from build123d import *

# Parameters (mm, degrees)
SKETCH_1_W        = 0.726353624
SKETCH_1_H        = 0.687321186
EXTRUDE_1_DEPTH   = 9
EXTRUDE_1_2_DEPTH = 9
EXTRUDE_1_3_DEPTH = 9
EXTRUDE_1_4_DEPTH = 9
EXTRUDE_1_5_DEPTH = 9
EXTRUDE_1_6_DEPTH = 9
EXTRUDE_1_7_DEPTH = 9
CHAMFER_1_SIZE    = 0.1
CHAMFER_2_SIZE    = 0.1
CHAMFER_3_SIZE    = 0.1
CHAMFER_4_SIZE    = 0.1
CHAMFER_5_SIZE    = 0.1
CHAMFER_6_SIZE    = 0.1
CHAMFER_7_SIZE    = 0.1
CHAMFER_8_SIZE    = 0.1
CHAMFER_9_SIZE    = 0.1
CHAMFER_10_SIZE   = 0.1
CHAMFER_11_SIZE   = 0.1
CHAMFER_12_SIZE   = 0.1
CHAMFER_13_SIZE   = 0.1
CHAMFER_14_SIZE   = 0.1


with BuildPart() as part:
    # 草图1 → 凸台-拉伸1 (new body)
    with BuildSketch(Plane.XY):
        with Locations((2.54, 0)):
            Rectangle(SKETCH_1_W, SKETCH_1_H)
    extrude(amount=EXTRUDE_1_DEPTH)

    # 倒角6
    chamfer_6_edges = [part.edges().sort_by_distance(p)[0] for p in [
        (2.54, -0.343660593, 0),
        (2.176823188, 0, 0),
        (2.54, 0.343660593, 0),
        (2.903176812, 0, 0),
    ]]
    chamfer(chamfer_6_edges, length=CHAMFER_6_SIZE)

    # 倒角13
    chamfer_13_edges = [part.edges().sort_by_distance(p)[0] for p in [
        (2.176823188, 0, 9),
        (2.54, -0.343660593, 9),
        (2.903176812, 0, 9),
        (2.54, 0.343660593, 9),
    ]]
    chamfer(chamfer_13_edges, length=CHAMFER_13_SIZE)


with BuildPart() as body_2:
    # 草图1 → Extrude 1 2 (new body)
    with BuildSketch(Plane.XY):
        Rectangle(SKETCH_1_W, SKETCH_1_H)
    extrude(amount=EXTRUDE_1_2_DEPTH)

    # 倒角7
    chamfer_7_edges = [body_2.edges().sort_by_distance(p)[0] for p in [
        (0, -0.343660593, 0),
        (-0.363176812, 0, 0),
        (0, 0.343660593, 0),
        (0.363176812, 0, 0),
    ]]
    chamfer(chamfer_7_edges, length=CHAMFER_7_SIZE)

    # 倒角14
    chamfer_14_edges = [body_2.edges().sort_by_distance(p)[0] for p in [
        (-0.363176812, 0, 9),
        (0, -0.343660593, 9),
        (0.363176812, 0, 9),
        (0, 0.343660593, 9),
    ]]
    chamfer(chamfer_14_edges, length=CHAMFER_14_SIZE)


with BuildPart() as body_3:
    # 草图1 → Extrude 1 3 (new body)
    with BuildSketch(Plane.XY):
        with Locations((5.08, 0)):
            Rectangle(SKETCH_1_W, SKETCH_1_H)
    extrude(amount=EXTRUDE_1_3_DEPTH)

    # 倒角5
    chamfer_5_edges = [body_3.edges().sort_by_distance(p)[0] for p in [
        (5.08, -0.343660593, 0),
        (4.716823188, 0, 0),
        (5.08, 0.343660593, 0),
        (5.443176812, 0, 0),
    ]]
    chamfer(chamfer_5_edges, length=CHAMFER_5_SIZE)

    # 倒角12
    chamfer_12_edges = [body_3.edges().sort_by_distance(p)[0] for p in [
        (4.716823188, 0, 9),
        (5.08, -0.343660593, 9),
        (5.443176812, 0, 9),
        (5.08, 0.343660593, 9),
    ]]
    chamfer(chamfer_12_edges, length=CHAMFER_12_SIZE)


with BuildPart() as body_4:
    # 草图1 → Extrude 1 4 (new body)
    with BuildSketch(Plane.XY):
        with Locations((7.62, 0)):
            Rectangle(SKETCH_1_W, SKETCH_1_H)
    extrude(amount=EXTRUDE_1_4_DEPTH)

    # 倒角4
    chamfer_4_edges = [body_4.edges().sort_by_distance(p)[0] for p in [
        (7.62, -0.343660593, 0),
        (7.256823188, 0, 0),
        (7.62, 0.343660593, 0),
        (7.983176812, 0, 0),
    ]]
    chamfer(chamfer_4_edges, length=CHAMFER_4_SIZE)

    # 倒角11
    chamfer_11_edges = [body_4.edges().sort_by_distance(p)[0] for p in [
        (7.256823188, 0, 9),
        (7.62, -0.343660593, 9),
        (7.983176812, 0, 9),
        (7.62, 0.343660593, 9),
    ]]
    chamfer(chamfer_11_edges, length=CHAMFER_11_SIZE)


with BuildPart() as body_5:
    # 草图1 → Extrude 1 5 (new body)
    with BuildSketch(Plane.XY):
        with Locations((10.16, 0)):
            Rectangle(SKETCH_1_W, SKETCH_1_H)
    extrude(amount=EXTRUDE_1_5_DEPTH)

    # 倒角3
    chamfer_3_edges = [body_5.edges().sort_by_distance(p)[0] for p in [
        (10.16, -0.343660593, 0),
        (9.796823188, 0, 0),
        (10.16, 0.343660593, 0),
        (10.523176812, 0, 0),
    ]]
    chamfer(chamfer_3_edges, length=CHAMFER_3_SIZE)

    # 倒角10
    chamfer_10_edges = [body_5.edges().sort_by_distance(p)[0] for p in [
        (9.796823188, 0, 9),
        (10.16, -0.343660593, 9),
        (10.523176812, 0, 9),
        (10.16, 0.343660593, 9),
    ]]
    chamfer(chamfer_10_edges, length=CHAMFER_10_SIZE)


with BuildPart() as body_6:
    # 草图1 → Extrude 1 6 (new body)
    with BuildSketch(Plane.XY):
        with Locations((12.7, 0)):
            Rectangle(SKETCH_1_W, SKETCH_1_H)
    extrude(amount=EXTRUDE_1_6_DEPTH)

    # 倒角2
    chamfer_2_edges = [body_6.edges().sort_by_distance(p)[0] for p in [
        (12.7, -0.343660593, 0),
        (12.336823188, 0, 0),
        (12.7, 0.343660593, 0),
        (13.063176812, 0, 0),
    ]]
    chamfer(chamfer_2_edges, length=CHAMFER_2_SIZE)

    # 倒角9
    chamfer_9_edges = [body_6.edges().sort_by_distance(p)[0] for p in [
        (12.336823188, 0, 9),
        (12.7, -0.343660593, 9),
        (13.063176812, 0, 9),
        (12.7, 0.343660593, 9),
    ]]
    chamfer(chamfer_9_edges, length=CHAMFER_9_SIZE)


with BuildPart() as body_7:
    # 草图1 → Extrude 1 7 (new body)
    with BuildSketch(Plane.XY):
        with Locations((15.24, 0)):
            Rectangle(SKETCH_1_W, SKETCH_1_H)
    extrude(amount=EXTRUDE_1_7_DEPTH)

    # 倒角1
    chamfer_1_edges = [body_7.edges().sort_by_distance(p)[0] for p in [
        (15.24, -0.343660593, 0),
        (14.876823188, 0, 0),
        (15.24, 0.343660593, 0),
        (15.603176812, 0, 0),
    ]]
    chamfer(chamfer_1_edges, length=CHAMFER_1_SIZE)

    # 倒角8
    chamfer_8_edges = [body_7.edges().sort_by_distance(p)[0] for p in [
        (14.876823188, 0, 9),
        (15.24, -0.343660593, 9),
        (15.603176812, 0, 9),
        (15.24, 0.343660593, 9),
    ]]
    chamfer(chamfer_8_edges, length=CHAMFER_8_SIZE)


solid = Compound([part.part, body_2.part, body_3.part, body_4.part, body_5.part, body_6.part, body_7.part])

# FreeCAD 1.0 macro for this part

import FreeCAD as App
import Part
import Sketcher
from FreeCAD import Vector
Q = App.Units.Quantity


def edges_at(feature, points):
    """Names of the edges that pass closest to the given points."""
    edges = feature.Shape.Edges
    near = lambda p: min(range(len(edges)), key=lambda i: edges[i].distToShape(Part.Vertex(*p))[0])
    return sorted({f"Edge{near(p) + 1}" for p in points})

doc = App.newDocument("Part")
params = doc.addObject("Spreadsheet::Sheet", "Params")
for row, (alias, value) in enumerate([
    ("pad1_length", "9 mm"),
    ("chamfer_size", "0.1 mm"),
    ("chamfer2_size", "0.1 mm"),
    ("pad2_length", "9 mm"),
    ("chamfer3_size", "0.1 mm"),
    ("chamfer4_size", "0.1 mm"),
    ("pad3_length", "9 mm"),
    ("chamfer5_size", "0.1 mm"),
    ("chamfer6_size", "0.1 mm"),
    ("pad4_length", "9 mm"),
    ("chamfer7_size", "0.1 mm"),
    ("chamfer8_size", "0.1 mm"),
    ("pad5_length", "9 mm"),
    ("chamfer9_size", "0.1 mm"),
    ("chamfer10_size", "0.1 mm"),
    ("pad6_length", "9 mm"),
    ("chamfer11_size", "0.1 mm"),
    ("chamfer12_size", "0.1 mm"),
    ("pad7_length", "9 mm"),
    ("chamfer13_size", "0.1 mm"),
    ("chamfer14_size", "0.1 mm"),
], start=1):
    params.set(f"A{row}", alias)
    params.set(f"B{row}", "=" + value)
    params.setAlias(f"B{row}", alias)

body = doc.addObject("PartDesign::Body", "Body")

sketch1 = body.newObject("Sketcher::SketchObject", "Sketch")
sketch1.AttachmentSupport = (doc.getObject("XY_Plane"), [""])
sketch1.MapMode = "FlatFace"
sketch1.addGeometry([
    Part.LineSegment(Vector(2.2, 0.3, 0), Vector(2.2, -0.3, 0)),
    Part.LineSegment(Vector(2.2, -0.3, 0), Vector(2.9, -0.3, 0)),
    Part.LineSegment(Vector(2.9, -0.3, 0), Vector(2.9, 0.3, 0)),
    Part.LineSegment(Vector(2.9, 0.3, 0), Vector(2.2, 0.3, 0)),
], False)
sketch1.addConstraint([
    Sketcher.Constraint("Coincident", 0, 2, 1, 1),
    Sketcher.Constraint("Coincident", 1, 2, 2, 1),
    Sketcher.Constraint("Coincident", 2, 2, 3, 1),
    Sketcher.Constraint("Coincident", 3, 2, 0, 1),
    Sketcher.Constraint("Vertical", 0),
    Sketcher.Constraint("Horizontal", 1),
    Sketcher.Constraint("Vertical", 2),
    Sketcher.Constraint("Horizontal", 3),
    Sketcher.Constraint("DistanceY", 0, 2, 0, 1, Q("0.687321 mm")),
    Sketcher.Constraint("DistanceX", 1, 1, 1, 2, Q("0.726354 mm")),
    Sketcher.Constraint("DistanceY", 0, 2, -1, 1, Q("0.343661 mm")),
    Sketcher.Constraint("DistanceX", -1, 1, 0, 2, Q("2.176823 mm")),
])
pad1 = body.newObject("PartDesign::Pad", "Pad")
pad1.Profile = sketch1
pad1.setExpression("Length", "Params.pad1_length")
doc.recompute()

chamfer = body.newObject("PartDesign::Chamfer", "Chamfer")
chamfer.Base = (pad1, edges_at(pad1, [
    (2.54, -0.344, 0),
    (2.177, 0, 0),
    (2.54, 0.344, 0),
    (2.903, 0, 0),
]))
chamfer.setExpression("Size", "Params.chamfer_size")
doc.recompute()

chamfer2 = body.newObject("PartDesign::Chamfer", "Chamfer001")
chamfer2.Base = (chamfer, edges_at(chamfer, [
    (2.177, 0, 9),
    (2.54, -0.344, 9),
    (2.903, 0, 9),
    (2.54, 0.344, 9),
]))
chamfer2.setExpression("Size", "Params.chamfer2_size")
body2 = doc.addObject("PartDesign::Body", "Body001")

sketch2 = body2.newObject("Sketcher::SketchObject", "Sketch001")
sketch2.AttachmentSupport = (doc.getObject("XY_Plane001"), [""])
sketch2.MapMode = "FlatFace"
sketch2.addGeometry([
    Part.LineSegment(Vector(-0.4, 0.3, 0), Vector(-0.4, -0.3, 0)),
    Part.LineSegment(Vector(-0.4, -0.3, 0), Vector(0.4, -0.3, 0)),
    Part.LineSegment(Vector(0.4, -0.3, 0), Vector(0.4, 0.3, 0)),
    Part.LineSegment(Vector(0.4, 0.3, 0), Vector(-0.4, 0.3, 0)),
], False)
sketch2.addConstraint([
    Sketcher.Constraint("Coincident", 0, 2, 1, 1),
    Sketcher.Constraint("Coincident", 1, 2, 2, 1),
    Sketcher.Constraint("Coincident", 2, 2, 3, 1),
    Sketcher.Constraint("Coincident", 3, 2, 0, 1),
    Sketcher.Constraint("Vertical", 0),
    Sketcher.Constraint("Horizontal", 1),
    Sketcher.Constraint("Vertical", 2),
    Sketcher.Constraint("Horizontal", 3),
    Sketcher.Constraint("Symmetric", 0, 2, 2, 2, -1, 1),
    Sketcher.Constraint("DistanceY", 0, 2, 0, 1, Q("0.687321 mm")),
    Sketcher.Constraint("DistanceX", 1, 1, 1, 2, Q("0.726354 mm")),
])
pad2 = body2.newObject("PartDesign::Pad", "Pad001")
pad2.Profile = sketch2
pad2.setExpression("Length", "Params.pad2_length")
doc.recompute()

chamfer3 = body2.newObject("PartDesign::Chamfer", "Chamfer002")
chamfer3.Base = (pad2, edges_at(pad2, [
    (0, -0.344, 0),
    (-0.363, 0, 0),
    (0, 0.344, 0),
    (0.363, 0, 0),
]))
chamfer3.setExpression("Size", "Params.chamfer3_size")
doc.recompute()

chamfer4 = body2.newObject("PartDesign::Chamfer", "Chamfer003")
chamfer4.Base = (chamfer3, edges_at(chamfer3, [
    (-0.363, 0, 9),
    (0, -0.344, 9),
    (0.363, 0, 9),
    (0, 0.344, 9),
]))
chamfer4.setExpression("Size", "Params.chamfer4_size")
body3 = doc.addObject("PartDesign::Body", "Body002")

sketch3 = body3.newObject("Sketcher::SketchObject", "Sketch002")
sketch3.AttachmentSupport = (doc.getObject("XY_Plane002"), [""])
sketch3.MapMode = "FlatFace"
sketch3.addGeometry([
    Part.LineSegment(Vector(4.7, 0.3, 0), Vector(4.7, -0.3, 0)),
    Part.LineSegment(Vector(4.7, -0.3, 0), Vector(5.4, -0.3, 0)),
    Part.LineSegment(Vector(5.4, -0.3, 0), Vector(5.4, 0.3, 0)),
    Part.LineSegment(Vector(5.4, 0.3, 0), Vector(4.7, 0.3, 0)),
], False)
sketch3.addConstraint([
    Sketcher.Constraint("Coincident", 0, 2, 1, 1),
    Sketcher.Constraint("Coincident", 1, 2, 2, 1),
    Sketcher.Constraint("Coincident", 2, 2, 3, 1),
    Sketcher.Constraint("Coincident", 3, 2, 0, 1),
    Sketcher.Constraint("Vertical", 0),
    Sketcher.Constraint("Horizontal", 1),
    Sketcher.Constraint("Vertical", 2),
    Sketcher.Constraint("Horizontal", 3),
    Sketcher.Constraint("DistanceY", 0, 2, 0, 1, Q("0.687321 mm")),
    Sketcher.Constraint("DistanceX", 1, 1, 1, 2, Q("0.726354 mm")),
    Sketcher.Constraint("DistanceY", 0, 2, -1, 1, Q("0.343661 mm")),
    Sketcher.Constraint("DistanceX", -1, 1, 0, 2, Q("4.716823 mm")),
])
pad3 = body3.newObject("PartDesign::Pad", "Pad002")
pad3.Profile = sketch3
pad3.setExpression("Length", "Params.pad3_length")
doc.recompute()

chamfer5 = body3.newObject("PartDesign::Chamfer", "Chamfer004")
chamfer5.Base = (pad3, edges_at(pad3, [
    (5.08, -0.344, 0),
    (4.717, 0, 0),
    (5.08, 0.344, 0),
    (5.443, 0, 0),
]))
chamfer5.setExpression("Size", "Params.chamfer5_size")
doc.recompute()

chamfer6 = body3.newObject("PartDesign::Chamfer", "Chamfer005")
chamfer6.Base = (chamfer5, edges_at(chamfer5, [
    (4.717, 0, 9),
    (5.08, -0.344, 9),
    (5.443, 0, 9),
    (5.08, 0.344, 9),
]))
chamfer6.setExpression("Size", "Params.chamfer6_size")
body4 = doc.addObject("PartDesign::Body", "Body003")

sketch4 = body4.newObject("Sketcher::SketchObject", "Sketch003")
sketch4.AttachmentSupport = (doc.getObject("XY_Plane003"), [""])
sketch4.MapMode = "FlatFace"
sketch4.addGeometry([
    Part.LineSegment(Vector(7.3, 0.3, 0), Vector(7.3, -0.3, 0)),
    Part.LineSegment(Vector(7.3, -0.3, 0), Vector(8, -0.3, 0)),
    Part.LineSegment(Vector(8, -0.3, 0), Vector(8, 0.3, 0)),
    Part.LineSegment(Vector(8, 0.3, 0), Vector(7.3, 0.3, 0)),
], False)
sketch4.addConstraint([
    Sketcher.Constraint("Coincident", 0, 2, 1, 1),
    Sketcher.Constraint("Coincident", 1, 2, 2, 1),
    Sketcher.Constraint("Coincident", 2, 2, 3, 1),
    Sketcher.Constraint("Coincident", 3, 2, 0, 1),
    Sketcher.Constraint("Vertical", 0),
    Sketcher.Constraint("Horizontal", 1),
    Sketcher.Constraint("Vertical", 2),
    Sketcher.Constraint("Horizontal", 3),
    Sketcher.Constraint("DistanceY", 0, 2, 0, 1, Q("0.687321 mm")),
    Sketcher.Constraint("DistanceX", 1, 1, 1, 2, Q("0.726354 mm")),
    Sketcher.Constraint("DistanceY", 0, 2, -1, 1, Q("0.343661 mm")),
    Sketcher.Constraint("DistanceX", -1, 1, 0, 2, Q("7.256823 mm")),
])
pad4 = body4.newObject("PartDesign::Pad", "Pad003")
pad4.Profile = sketch4
pad4.setExpression("Length", "Params.pad4_length")
doc.recompute()

chamfer7 = body4.newObject("PartDesign::Chamfer", "Chamfer006")
chamfer7.Base = (pad4, edges_at(pad4, [
    (7.62, -0.344, 0),
    (7.257, 0, 0),
    (7.62, 0.344, 0),
    (7.983, 0, 0),
]))
chamfer7.setExpression("Size", "Params.chamfer7_size")
doc.recompute()

chamfer8 = body4.newObject("PartDesign::Chamfer", "Chamfer007")
chamfer8.Base = (chamfer7, edges_at(chamfer7, [
    (7.257, 0, 9),
    (7.62, -0.344, 9),
    (7.983, 0, 9),
    (7.62, 0.344, 9),
]))
chamfer8.setExpression("Size", "Params.chamfer8_size")
body5 = doc.addObject("PartDesign::Body", "Body004")

sketch5 = body5.newObject("Sketcher::SketchObject", "Sketch004")
sketch5.AttachmentSupport = (doc.getObject("XY_Plane004"), [""])
sketch5.MapMode = "FlatFace"
sketch5.addGeometry([
    Part.LineSegment(Vector(9.8, 0.3, 0), Vector(9.8, -0.3, 0)),
    Part.LineSegment(Vector(9.8, -0.3, 0), Vector(10.5, -0.3, 0)),
    Part.LineSegment(Vector(10.5, -0.3, 0), Vector(10.5, 0.3, 0)),
    Part.LineSegment(Vector(10.5, 0.3, 0), Vector(9.8, 0.3, 0)),
], False)
sketch5.addConstraint([
    Sketcher.Constraint("Coincident", 0, 2, 1, 1),
    Sketcher.Constraint("Coincident", 1, 2, 2, 1),
    Sketcher.Constraint("Coincident", 2, 2, 3, 1),
    Sketcher.Constraint("Coincident", 3, 2, 0, 1),
    Sketcher.Constraint("Vertical", 0),
    Sketcher.Constraint("Horizontal", 1),
    Sketcher.Constraint("Vertical", 2),
    Sketcher.Constraint("Horizontal", 3),
    Sketcher.Constraint("DistanceY", 0, 2, 0, 1, Q("0.687321 mm")),
    Sketcher.Constraint("DistanceX", 1, 1, 1, 2, Q("0.726354 mm")),
    Sketcher.Constraint("DistanceY", 0, 2, -1, 1, Q("0.343661 mm")),
    Sketcher.Constraint("DistanceX", -1, 1, 0, 2, Q("9.796823 mm")),
])
pad5 = body5.newObject("PartDesign::Pad", "Pad004")
pad5.Profile = sketch5
pad5.setExpression("Length", "Params.pad5_length")
doc.recompute()

chamfer9 = body5.newObject("PartDesign::Chamfer", "Chamfer008")
chamfer9.Base = (pad5, edges_at(pad5, [
    (10.16, -0.344, 0),
    (9.797, 0, 0),
    (10.16, 0.344, 0),
    (10.523, 0, 0),
]))
chamfer9.setExpression("Size", "Params.chamfer9_size")
doc.recompute()

chamfer10 = body5.newObject("PartDesign::Chamfer", "Chamfer009")
chamfer10.Base = (chamfer9, edges_at(chamfer9, [
    (9.797, 0, 9),
    (10.16, -0.344, 9),
    (10.523, 0, 9),
    (10.16, 0.344, 9),
]))
chamfer10.setExpression("Size", "Params.chamfer10_size")
body6 = doc.addObject("PartDesign::Body", "Body005")

sketch6 = body6.newObject("Sketcher::SketchObject", "Sketch005")
sketch6.AttachmentSupport = (doc.getObject("XY_Plane005"), [""])
sketch6.MapMode = "FlatFace"
sketch6.addGeometry([
    Part.LineSegment(Vector(12.3, 0.3, 0), Vector(12.3, -0.3, 0)),
    Part.LineSegment(Vector(12.3, -0.3, 0), Vector(13.1, -0.3, 0)),
    Part.LineSegment(Vector(13.1, -0.3, 0), Vector(13.1, 0.3, 0)),
    Part.LineSegment(Vector(13.1, 0.3, 0), Vector(12.3, 0.3, 0)),
], False)
sketch6.addConstraint([
    Sketcher.Constraint("Coincident", 0, 2, 1, 1),
    Sketcher.Constraint("Coincident", 1, 2, 2, 1),
    Sketcher.Constraint("Coincident", 2, 2, 3, 1),
    Sketcher.Constraint("Coincident", 3, 2, 0, 1),
    Sketcher.Constraint("Vertical", 0),
    Sketcher.Constraint("Horizontal", 1),
    Sketcher.Constraint("Vertical", 2),
    Sketcher.Constraint("Horizontal", 3),
    Sketcher.Constraint("DistanceY", 0, 2, 0, 1, Q("0.687321 mm")),
    Sketcher.Constraint("DistanceX", 1, 1, 1, 2, Q("0.726354 mm")),
    Sketcher.Constraint("DistanceY", 0, 2, -1, 1, Q("0.343661 mm")),
    Sketcher.Constraint("DistanceX", -1, 1, 0, 2, Q("12.336823 mm")),
])
pad6 = body6.newObject("PartDesign::Pad", "Pad005")
pad6.Profile = sketch6
pad6.setExpression("Length", "Params.pad6_length")
doc.recompute()

chamfer11 = body6.newObject("PartDesign::Chamfer", "Chamfer010")
chamfer11.Base = (pad6, edges_at(pad6, [
    (12.7, -0.344, 0),
    (12.337, 0, 0),
    (12.7, 0.344, 0),
    (13.063, 0, 0),
]))
chamfer11.setExpression("Size", "Params.chamfer11_size")
doc.recompute()

chamfer12 = body6.newObject("PartDesign::Chamfer", "Chamfer011")
chamfer12.Base = (chamfer11, edges_at(chamfer11, [
    (12.337, 0, 9),
    (12.7, -0.344, 9),
    (13.063, 0, 9),
    (12.7, 0.344, 9),
]))
chamfer12.setExpression("Size", "Params.chamfer12_size")
body7 = doc.addObject("PartDesign::Body", "Body006")

sketch7 = body7.newObject("Sketcher::SketchObject", "Sketch006")
sketch7.AttachmentSupport = (doc.getObject("XY_Plane006"), [""])
sketch7.MapMode = "FlatFace"
sketch7.addGeometry([
    Part.LineSegment(Vector(14.9, 0.3, 0), Vector(14.9, -0.3, 0)),
    Part.LineSegment(Vector(14.9, -0.3, 0), Vector(15.6, -0.3, 0)),
    Part.LineSegment(Vector(15.6, -0.3, 0), Vector(15.6, 0.3, 0)),
    Part.LineSegment(Vector(15.6, 0.3, 0), Vector(14.9, 0.3, 0)),
], False)
sketch7.addConstraint([
    Sketcher.Constraint("Coincident", 0, 2, 1, 1),
    Sketcher.Constraint("Coincident", 1, 2, 2, 1),
    Sketcher.Constraint("Coincident", 2, 2, 3, 1),
    Sketcher.Constraint("Coincident", 3, 2, 0, 1),
    Sketcher.Constraint("Vertical", 0),
    Sketcher.Constraint("Horizontal", 1),
    Sketcher.Constraint("Vertical", 2),
    Sketcher.Constraint("Horizontal", 3),
    Sketcher.Constraint("DistanceY", 0, 2, 0, 1, Q("0.687321 mm")),
    Sketcher.Constraint("DistanceX", 1, 1, 1, 2, Q("0.726354 mm")),
    Sketcher.Constraint("DistanceY", 0, 2, -1, 1, Q("0.343661 mm")),
    Sketcher.Constraint("DistanceX", -1, 1, 0, 2, Q("14.876823 mm")),
])
pad7 = body7.newObject("PartDesign::Pad", "Pad006")
pad7.Profile = sketch7
pad7.setExpression("Length", "Params.pad7_length")
doc.recompute()

chamfer13 = body7.newObject("PartDesign::Chamfer", "Chamfer012")
chamfer13.Base = (pad7, edges_at(pad7, [
    (15.24, -0.344, 0),
    (14.877, 0, 0),
    (15.24, 0.344, 0),
    (15.603, 0, 0),
]))
chamfer13.setExpression("Size", "Params.chamfer13_size")
doc.recompute()

chamfer14 = body7.newObject("PartDesign::Chamfer", "Chamfer013")
chamfer14.Base = (chamfer13, edges_at(chamfer13, [
    (14.877, 0, 9),
    (15.24, -0.344, 9),
    (15.603, 0, 9),
    (15.24, 0.344, 9),
]))
chamfer14.setExpression("Size", "Params.chamfer14_size")

doc.recompute()
